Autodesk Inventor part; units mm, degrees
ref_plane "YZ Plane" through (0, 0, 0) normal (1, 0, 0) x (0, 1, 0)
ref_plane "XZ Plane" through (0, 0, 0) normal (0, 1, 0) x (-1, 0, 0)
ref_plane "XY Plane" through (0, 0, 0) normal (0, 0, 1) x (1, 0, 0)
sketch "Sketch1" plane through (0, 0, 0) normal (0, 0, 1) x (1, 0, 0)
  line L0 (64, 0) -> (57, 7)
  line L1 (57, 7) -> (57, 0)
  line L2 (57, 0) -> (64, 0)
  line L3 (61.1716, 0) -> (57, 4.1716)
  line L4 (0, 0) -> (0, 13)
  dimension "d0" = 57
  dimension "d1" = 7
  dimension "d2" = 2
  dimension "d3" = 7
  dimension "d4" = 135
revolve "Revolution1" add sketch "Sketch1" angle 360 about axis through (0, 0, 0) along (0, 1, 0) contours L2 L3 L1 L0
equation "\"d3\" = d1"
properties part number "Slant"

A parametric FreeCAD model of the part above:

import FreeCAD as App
import Part
import Sketcher
from FreeCAD import Vector


def add_polygon(sketch, points):
    """Adds a closed chain of lines whose ends are joined by coincident constraints."""
    first, n = sketch.GeometryCount, len(points)
    for a, b in zip(points, points[1:] + points[:1]):
        sketch.addGeometry(Part.LineSegment(App.Vector(*a, 0), App.Vector(*b, 0)), False)
    for i in range(n):
        sketch.addConstraint(Sketcher.Constraint("Coincident", first + i, 2, first + (i + 1) % n, 1))

doc = App.newDocument("Part")
body = doc.addObject("PartDesign::Body", "Body")

sketch1 = body.newObject("Sketcher::SketchObject", "Sketch")
sketch1.AttachmentSupport = (doc.getObject("XY_Plane"), [""])
sketch1.MapMode = "FlatFace"
add_polygon(sketch1, [(61.2, 0), (64, 0), (57, 7), (57, 4.2)])
sketch1.addConstraint(Sketcher.Constraint("Horizontal", 0))
sketch1.addConstraint(Sketcher.Constraint("Vertical", 2))
sketch1.addConstraint(Sketcher.Constraint("PointOnObject", 0, 2, -1))
sketch1.addConstraint(Sketcher.Constraint("Parallel", 1, 3))
sketch1.addConstraint(Sketcher.Constraint("Equal", 0, 2))
sketch1.addConstraint(Sketcher.Constraint("DistanceX", -1, 1, 1, 2, 57.0))
sketch1.addConstraint(Sketcher.Constraint("DistanceY", -1, 1, 1, 2, 7.0))
sketch1.addConstraint(Sketcher.Constraint("DistanceX", 0, 1, 0, 2, 2.8284))
revolution = body.newObject("PartDesign::Revolution", "Revolution")
revolution.Profile = sketch1
revolution.ReferenceAxis = (sketch1, ["V_Axis"])
revolution.Angle = 360

doc.recompute()
